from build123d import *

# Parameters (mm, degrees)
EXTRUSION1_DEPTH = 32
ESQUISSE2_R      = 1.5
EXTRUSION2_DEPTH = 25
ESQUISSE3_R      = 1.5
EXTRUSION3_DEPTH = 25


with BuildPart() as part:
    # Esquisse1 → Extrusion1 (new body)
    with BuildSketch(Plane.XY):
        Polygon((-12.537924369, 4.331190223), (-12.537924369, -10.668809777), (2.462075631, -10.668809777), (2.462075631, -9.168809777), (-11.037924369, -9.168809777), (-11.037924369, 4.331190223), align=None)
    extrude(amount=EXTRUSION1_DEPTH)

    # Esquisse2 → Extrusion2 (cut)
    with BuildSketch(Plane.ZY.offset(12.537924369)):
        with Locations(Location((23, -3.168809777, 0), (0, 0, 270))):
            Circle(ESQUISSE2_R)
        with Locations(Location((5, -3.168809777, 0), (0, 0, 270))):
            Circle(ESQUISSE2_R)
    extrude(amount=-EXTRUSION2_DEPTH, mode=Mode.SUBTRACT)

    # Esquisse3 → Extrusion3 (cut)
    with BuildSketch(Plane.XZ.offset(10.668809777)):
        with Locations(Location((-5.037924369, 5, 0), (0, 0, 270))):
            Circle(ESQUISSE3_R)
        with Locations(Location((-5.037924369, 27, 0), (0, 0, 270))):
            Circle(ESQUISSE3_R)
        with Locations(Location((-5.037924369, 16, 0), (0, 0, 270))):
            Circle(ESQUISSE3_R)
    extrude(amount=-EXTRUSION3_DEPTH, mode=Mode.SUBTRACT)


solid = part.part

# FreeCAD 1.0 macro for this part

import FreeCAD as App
import Part
import Sketcher

V = App.Vector
Q = App.Units.Quantity

doc = App.newDocument("Part")
body = doc.addObject("PartDesign::Body", "Body")

sketch1 = body.newObject("Sketcher::SketchObject", "Sketch")
sketch1.AttachmentSupport = (doc.getObject("XY_Plane"), [""])
sketch1.MapMode = "FlatFace"
sketch1.addGeometry([
    Part.LineSegment(V(-12.537924, 4.33119, 0), V(-12.537924, -10.66881, 0)),
    Part.LineSegment(V(-12.537924, -10.66881, 0), V(2.462076, -10.66881, 0)),
    Part.LineSegment(V(2.462076, -10.66881, 0), V(2.462076, -9.16881, 0)),
    Part.LineSegment(V(2.462076, -9.16881, 0), V(-11.037924, -9.16881, 0)),
    Part.LineSegment(V(-11.037924, -9.16881, 0), V(-11.037924, 4.33119, 0)),
    Part.LineSegment(V(-11.037924, 4.33119, 0), V(-12.537924, 4.33119, 0)),
], False)
sketch1.addConstraint([
    Sketcher.Constraint("Coincident", 0, 2, 1, 1),
    Sketcher.Constraint("Coincident", 1, 2, 2, 1),
    Sketcher.Constraint("Coincident", 2, 2, 3, 1),
    Sketcher.Constraint("Coincident", 3, 2, 4, 1),
    Sketcher.Constraint("Coincident", 4, 2, 5, 1),
    Sketcher.Constraint("Coincident", 5, 2, 0, 1),
    Sketcher.Constraint("Vertical", 0),
    Sketcher.Constraint("Horizontal", 1),
    Sketcher.Constraint("Vertical", 2),
    Sketcher.Constraint("Horizontal", 3),
    Sketcher.Constraint("Vertical", 4),
    Sketcher.Constraint("Horizontal", 5),
    Sketcher.Constraint("Equal", 1, 0),
    Sketcher.Constraint("Equal", 5, 2),
    Sketcher.Constraint("DistanceX", 1, 1, 1, 2, Q("15 mm")),
    Sketcher.Constraint("DistanceX", 3, 2, 3, 1, Q("13.5 mm")),
    Sketcher.Constraint("DistanceY", 0, 2, -1, 1, Q("10.66881 mm")),
    Sketcher.Constraint("DistanceX", 0, 2, -1, 1, Q("12.537924 mm")),
])
pad1 = body.newObject("PartDesign::Pad", "Pad")
pad1.Profile = sketch1
pad1.Length = 32

sketch2 = body.newObject("Sketcher::SketchObject", "Sketch001")
sketch2.AttachmentSupport = (doc.getObject("YZ_Plane"), [""])
sketch2.MapMode = "FlatFace"
sketch2.AttachmentOffset = App.Placement(V(0, 0, -12.537924), App.Rotation())
sketch2.addGeometry([
    Part.Circle(V(-3.16881, 23, 0), V(0, 0, 1), 1.5),
    Part.Circle(V(-3.16881, 5, 0), V(0, 0, 1), 1.5),
], False)
sketch2.addConstraint([
    Sketcher.Constraint("Equal", 0, 1),
    Sketcher.Constraint("Vertical", 0, 3, 1, 3),
    Sketcher.Constraint("Diameter", 0, Q("3 mm")),
    Sketcher.Constraint("DistanceY", -1, 1, 0, 3, Q("23 mm")),
    Sketcher.Constraint("DistanceY", -1, 1, 1, 3, Q("5 mm")),
    Sketcher.Constraint("DistanceX", 0, 3, -1, 1, Q("3.16881 mm")),
])
pocket1 = body.newObject("PartDesign::Pocket", "Pocket")
pocket1.Profile = sketch2
pocket1.Length = 25
pocket1.Reversed = True

sketch3 = body.newObject("Sketcher::SketchObject", "Sketch002")
sketch3.AttachmentSupport = (doc.getObject("XZ_Plane"), [""])
sketch3.MapMode = "FlatFace"
sketch3.AttachmentOffset = App.Placement(V(0, 0, 10.66881), App.Rotation())
sketch3.addGeometry([
    Part.Circle(V(-5.037924, 5, 0), V(0, 0, 1), 1.5),
    Part.Circle(V(-5.037924, 27, 0), V(0, 0, 1), 1.5),
    Part.Circle(V(-5.037924, 16, 0), V(0, 0, 1), 1.5),
], False)
sketch3.addConstraint([
    Sketcher.Constraint("Equal", 0, 1),
    Sketcher.Constraint("Equal", 1, 2),
    Sketcher.Constraint("Vertical", 0, 3, 1, 3),
    Sketcher.Constraint("Vertical", 1, 3, 2, 3),
    Sketcher.Constraint("Diameter", 0, Q("3 mm")),
    Sketcher.Constraint("DistanceY", -1, 1, 0, 3, Q("5 mm")),
    Sketcher.Constraint("DistanceY", -1, 1, 1, 3, Q("27 mm")),
    Sketcher.Constraint("DistanceY", -1, 1, 2, 3, Q("16 mm")),
    Sketcher.Constraint("DistanceX", 0, 3, -1, 1, Q("5.037924 mm")),
])
pocket2 = body.newObject("PartDesign::Pocket", "Pocket001")
pocket2.Profile = sketch3
pocket2.Length = 25

doc.recompute()
